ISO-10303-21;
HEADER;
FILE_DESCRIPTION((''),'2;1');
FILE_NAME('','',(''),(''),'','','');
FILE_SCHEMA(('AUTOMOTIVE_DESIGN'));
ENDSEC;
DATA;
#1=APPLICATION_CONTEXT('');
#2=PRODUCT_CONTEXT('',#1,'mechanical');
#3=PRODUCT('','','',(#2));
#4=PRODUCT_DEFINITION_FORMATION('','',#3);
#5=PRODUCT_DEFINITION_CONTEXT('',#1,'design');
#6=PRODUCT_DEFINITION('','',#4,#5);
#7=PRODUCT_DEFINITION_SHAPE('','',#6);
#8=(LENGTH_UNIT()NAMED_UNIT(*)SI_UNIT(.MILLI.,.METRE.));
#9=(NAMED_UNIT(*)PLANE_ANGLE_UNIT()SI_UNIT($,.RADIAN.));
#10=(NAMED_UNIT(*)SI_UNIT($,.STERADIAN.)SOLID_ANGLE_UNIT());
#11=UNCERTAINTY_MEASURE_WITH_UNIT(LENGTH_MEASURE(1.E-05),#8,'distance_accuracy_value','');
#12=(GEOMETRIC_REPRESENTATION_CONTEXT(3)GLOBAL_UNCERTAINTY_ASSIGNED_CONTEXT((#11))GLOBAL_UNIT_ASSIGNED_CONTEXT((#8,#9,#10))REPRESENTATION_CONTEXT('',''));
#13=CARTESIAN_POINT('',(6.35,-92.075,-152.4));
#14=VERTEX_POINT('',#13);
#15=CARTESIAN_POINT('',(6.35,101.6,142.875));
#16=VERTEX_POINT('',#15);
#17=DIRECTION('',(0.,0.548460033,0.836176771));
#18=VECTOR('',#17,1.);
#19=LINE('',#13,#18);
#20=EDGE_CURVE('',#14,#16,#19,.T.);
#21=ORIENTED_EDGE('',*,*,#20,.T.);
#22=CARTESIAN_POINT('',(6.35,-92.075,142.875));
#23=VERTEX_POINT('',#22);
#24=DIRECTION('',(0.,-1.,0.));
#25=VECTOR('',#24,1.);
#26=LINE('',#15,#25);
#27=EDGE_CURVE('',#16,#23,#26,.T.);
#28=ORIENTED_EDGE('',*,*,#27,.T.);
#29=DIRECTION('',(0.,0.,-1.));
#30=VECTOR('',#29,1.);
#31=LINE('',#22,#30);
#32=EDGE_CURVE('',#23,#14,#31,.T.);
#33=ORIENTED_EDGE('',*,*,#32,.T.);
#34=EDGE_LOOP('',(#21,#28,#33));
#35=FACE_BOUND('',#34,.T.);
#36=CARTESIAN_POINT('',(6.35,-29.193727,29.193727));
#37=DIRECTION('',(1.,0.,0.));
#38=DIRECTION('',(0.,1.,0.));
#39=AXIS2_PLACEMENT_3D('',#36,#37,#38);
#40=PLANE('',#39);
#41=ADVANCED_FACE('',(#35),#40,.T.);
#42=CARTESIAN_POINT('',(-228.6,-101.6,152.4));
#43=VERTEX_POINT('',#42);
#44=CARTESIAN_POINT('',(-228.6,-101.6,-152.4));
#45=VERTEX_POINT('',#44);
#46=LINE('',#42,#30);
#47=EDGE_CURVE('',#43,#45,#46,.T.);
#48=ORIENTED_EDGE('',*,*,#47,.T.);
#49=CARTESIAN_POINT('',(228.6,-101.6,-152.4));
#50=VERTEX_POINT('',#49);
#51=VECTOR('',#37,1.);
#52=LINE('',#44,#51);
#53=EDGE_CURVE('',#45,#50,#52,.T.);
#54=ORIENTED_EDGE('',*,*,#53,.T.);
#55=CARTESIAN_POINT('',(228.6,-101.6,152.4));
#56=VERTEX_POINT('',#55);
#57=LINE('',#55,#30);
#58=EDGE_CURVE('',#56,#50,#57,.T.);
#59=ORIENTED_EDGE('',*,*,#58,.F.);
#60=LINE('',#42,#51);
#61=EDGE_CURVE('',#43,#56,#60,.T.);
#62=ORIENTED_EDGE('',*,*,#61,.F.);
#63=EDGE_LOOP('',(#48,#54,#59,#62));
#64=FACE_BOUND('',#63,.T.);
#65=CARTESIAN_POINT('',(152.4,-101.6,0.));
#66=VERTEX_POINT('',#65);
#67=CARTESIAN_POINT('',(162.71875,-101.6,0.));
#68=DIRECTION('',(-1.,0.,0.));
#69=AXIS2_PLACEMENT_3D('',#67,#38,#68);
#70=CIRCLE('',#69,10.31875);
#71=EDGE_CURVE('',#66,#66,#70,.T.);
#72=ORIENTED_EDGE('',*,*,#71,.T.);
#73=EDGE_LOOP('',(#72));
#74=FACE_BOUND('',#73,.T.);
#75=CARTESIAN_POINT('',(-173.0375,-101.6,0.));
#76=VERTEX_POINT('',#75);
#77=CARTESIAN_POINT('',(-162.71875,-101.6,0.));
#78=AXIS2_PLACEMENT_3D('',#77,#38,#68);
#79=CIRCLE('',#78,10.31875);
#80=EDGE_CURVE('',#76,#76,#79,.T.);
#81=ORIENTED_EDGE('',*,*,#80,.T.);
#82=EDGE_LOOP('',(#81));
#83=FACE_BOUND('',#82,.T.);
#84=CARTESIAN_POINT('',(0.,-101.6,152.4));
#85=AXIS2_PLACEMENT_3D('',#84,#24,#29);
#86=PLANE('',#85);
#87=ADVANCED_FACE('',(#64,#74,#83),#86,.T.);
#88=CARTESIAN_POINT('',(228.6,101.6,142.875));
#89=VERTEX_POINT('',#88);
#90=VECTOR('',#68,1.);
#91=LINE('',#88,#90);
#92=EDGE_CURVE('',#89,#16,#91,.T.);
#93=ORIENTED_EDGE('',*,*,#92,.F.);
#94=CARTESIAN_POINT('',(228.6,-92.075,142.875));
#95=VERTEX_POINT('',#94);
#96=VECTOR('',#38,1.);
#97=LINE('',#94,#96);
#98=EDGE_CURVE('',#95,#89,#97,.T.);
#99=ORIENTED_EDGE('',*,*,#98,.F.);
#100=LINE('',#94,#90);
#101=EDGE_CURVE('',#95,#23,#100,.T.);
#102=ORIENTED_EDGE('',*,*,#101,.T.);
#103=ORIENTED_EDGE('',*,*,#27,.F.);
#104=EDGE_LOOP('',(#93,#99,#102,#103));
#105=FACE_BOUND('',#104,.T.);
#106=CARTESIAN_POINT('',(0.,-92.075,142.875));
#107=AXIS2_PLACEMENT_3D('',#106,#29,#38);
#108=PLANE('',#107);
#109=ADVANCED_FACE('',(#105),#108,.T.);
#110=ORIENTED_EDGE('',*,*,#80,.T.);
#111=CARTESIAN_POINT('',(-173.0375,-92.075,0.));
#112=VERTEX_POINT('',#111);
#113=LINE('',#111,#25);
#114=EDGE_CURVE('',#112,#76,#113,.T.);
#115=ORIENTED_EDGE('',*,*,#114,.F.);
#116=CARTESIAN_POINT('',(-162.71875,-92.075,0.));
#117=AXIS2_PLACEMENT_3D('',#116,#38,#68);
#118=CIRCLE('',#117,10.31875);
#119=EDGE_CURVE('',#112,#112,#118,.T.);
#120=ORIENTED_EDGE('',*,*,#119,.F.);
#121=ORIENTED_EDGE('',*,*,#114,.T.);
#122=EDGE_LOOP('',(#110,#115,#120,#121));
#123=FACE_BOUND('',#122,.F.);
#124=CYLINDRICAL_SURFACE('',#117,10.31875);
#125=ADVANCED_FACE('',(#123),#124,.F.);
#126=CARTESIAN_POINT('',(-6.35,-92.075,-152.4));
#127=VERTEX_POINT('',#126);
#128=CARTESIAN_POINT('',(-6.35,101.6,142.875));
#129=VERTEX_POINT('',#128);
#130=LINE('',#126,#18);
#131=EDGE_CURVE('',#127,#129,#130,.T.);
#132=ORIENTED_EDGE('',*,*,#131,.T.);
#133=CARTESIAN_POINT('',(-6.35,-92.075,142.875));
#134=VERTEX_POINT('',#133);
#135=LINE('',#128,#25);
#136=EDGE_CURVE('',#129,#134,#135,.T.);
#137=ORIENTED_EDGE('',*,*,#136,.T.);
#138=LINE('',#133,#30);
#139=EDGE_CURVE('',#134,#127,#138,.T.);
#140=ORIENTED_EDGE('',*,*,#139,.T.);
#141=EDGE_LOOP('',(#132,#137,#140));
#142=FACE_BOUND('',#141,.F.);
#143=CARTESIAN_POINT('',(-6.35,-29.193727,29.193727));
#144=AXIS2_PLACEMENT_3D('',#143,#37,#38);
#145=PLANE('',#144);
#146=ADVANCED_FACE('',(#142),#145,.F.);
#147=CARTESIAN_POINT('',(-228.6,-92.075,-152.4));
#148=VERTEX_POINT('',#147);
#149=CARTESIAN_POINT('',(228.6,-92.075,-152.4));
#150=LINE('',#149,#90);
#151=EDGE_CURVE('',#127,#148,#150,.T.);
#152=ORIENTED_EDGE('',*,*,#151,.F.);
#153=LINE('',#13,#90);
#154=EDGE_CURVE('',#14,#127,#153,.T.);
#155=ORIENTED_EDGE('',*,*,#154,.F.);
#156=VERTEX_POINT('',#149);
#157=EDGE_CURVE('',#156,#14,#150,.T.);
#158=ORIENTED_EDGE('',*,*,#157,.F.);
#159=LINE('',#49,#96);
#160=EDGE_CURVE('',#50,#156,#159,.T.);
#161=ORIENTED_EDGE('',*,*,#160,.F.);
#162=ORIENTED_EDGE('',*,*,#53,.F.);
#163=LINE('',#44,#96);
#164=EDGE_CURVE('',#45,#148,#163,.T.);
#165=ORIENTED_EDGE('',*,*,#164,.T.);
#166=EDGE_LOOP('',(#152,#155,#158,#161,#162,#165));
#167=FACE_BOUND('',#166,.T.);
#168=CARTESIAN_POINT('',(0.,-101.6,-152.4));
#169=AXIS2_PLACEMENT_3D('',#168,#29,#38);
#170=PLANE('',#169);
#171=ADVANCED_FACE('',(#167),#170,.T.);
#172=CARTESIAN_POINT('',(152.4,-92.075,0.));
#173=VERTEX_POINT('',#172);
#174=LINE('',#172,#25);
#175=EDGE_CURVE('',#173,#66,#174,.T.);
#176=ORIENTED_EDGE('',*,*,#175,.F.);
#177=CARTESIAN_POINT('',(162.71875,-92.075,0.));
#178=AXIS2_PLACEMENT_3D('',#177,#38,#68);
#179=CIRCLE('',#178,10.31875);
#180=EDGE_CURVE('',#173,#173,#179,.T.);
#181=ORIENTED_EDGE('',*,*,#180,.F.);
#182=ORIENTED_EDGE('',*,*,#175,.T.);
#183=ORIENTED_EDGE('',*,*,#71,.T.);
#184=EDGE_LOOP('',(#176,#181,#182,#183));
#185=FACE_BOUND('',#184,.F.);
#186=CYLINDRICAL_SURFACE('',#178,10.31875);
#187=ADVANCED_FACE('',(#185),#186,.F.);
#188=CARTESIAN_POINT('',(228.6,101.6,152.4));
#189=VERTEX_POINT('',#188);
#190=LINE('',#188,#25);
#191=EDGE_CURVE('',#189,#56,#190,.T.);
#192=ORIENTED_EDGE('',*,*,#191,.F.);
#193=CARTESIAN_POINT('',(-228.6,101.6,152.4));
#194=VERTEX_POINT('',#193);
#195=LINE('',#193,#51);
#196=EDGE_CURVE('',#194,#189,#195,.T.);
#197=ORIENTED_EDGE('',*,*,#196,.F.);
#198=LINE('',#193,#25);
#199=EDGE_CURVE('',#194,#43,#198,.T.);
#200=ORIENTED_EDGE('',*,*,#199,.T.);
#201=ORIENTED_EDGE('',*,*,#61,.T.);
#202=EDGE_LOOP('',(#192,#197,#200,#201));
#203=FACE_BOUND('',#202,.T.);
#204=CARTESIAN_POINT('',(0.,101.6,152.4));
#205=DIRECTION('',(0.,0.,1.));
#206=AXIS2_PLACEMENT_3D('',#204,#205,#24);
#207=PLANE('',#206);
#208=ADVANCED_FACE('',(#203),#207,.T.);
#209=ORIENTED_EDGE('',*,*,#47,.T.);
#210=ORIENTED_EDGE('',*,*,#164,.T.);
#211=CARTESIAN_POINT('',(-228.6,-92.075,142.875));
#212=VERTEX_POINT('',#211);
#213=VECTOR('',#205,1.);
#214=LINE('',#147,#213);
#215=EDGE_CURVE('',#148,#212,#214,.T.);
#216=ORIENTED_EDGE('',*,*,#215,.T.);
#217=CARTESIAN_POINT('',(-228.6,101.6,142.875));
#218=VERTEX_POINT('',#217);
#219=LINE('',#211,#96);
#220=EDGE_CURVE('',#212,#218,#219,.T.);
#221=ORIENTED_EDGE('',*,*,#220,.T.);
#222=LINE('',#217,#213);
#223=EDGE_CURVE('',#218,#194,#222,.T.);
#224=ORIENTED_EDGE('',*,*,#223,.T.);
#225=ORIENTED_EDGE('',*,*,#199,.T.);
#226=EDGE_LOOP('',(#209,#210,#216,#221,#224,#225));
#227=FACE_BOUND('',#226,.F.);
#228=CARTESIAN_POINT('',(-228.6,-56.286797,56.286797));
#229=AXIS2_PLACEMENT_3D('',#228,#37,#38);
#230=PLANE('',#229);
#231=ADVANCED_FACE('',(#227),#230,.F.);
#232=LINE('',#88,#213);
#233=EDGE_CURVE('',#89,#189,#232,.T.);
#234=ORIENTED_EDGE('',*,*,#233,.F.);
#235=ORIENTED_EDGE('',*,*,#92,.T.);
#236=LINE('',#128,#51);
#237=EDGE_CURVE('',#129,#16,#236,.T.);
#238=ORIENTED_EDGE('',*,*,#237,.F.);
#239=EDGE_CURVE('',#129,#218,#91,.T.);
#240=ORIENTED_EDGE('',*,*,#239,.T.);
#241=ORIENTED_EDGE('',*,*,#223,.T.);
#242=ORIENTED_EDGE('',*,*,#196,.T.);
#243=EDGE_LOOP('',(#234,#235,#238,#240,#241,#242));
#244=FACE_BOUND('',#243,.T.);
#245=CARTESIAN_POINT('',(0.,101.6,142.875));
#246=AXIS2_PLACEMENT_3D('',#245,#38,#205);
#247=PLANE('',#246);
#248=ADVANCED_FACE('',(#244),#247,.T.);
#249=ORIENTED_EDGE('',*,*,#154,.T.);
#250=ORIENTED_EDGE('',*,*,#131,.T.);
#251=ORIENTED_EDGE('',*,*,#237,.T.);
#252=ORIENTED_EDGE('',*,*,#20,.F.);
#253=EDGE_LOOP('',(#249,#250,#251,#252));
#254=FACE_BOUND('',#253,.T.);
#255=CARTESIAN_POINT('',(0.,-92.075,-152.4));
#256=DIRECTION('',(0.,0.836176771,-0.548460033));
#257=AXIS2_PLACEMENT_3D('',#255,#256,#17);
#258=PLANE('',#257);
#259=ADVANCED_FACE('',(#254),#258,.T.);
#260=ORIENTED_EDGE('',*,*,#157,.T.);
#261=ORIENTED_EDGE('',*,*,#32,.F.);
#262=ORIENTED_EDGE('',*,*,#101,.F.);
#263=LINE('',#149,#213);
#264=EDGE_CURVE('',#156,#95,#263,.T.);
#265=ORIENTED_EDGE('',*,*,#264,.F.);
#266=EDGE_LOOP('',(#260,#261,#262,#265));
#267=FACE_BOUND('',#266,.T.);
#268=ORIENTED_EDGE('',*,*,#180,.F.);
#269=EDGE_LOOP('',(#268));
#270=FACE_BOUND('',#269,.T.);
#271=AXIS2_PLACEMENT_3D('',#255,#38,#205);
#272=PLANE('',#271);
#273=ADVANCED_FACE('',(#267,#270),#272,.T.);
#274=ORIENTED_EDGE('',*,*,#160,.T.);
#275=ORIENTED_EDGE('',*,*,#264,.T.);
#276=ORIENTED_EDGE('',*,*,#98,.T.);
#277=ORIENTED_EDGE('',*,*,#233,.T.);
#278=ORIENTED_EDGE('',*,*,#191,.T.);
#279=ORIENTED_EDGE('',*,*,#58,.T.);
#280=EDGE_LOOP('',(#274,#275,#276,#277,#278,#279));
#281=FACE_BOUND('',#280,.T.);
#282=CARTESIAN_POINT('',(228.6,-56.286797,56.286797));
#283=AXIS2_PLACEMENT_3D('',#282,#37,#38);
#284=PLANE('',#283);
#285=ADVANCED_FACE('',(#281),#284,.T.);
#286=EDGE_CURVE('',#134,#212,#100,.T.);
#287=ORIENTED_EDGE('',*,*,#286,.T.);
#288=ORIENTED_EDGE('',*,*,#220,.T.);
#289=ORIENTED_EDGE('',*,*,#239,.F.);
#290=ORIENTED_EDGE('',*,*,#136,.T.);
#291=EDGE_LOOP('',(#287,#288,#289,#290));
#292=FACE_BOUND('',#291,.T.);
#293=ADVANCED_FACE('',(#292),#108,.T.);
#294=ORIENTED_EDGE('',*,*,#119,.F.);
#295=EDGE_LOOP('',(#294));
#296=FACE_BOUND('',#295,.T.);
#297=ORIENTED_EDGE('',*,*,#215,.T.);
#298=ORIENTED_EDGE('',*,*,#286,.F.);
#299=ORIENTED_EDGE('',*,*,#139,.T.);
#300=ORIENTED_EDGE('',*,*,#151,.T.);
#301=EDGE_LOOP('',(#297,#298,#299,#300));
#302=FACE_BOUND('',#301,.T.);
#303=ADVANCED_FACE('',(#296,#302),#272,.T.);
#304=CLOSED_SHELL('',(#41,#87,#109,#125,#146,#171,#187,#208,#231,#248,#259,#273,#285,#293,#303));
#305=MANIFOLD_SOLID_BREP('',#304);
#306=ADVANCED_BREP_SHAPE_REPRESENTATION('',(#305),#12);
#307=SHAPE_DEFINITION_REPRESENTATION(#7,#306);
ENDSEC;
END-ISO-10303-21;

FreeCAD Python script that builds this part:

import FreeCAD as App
import Part
import Sketcher

V = App.Vector
Q = App.Units.Quantity

doc = App.newDocument("Part")
body = doc.addObject("PartDesign::Body", "Body")

# Sketch on YZ plane
sketch1 = body.newObject("Sketcher::SketchObject", "Sketch")
sketch1.AttachmentSupport = (doc.getObject("YZ_Plane"), [""])
sketch1.MapMode = "FlatFace"
sketch1.addGeometry([
    Part.LineSegment(V(102, 143, 0), V(102, 152, 0)),  # 0
    Part.LineSegment(V(102, 152, 0), V(-102, 152, 0)),  # 1
    Part.LineSegment(V(-102, 152, 0), V(-102, -152, 0)),  # 2
    Part.LineSegment(V(-102, -152, 0), V(-92, -152, 0)),  # 3
    Part.LineSegment(V(-92, -152, 0), V(-92, 143, 0)),  # 4
    Part.LineSegment(V(-92, 143, 0), V(102, 143, 0)),  # 5
], False)
sketch1.addConstraint([
    Sketcher.Constraint("Coincident", 0, 2, 1, 1),
    Sketcher.Constraint("Coincident", 1, 2, 2, 1),
    Sketcher.Constraint("Coincident", 2, 2, 3, 1),
    Sketcher.Constraint("Coincident", 3, 2, 4, 1),
    Sketcher.Constraint("Coincident", 4, 2, 5, 1),
    Sketcher.Constraint("Coincident", 5, 2, 0, 1),
    Sketcher.Constraint("Vertical", 0),
    Sketcher.Constraint("Horizontal", 1),
    Sketcher.Constraint("Vertical", 2),
    Sketcher.Constraint("Horizontal", 3),
    Sketcher.Constraint("Vertical", 4),
    Sketcher.Constraint("Horizontal", 5),
    Sketcher.Constraint("Symmetric", 0, 2, 2, 2, -1, 1),
    Sketcher.Constraint("Equal", 3, 0),
    Sketcher.Constraint("DistanceX", 1, 2, 1, 1, Q("8 in")),
    Sketcher.Constraint("DistanceY", 2, 2, 2, 1, Q("12 in")),
    Sketcher.Constraint("DistanceX", 3, 1, 3, 2, Q("0.375 in")),
])
pad1 = body.newObject("PartDesign::Pad", "Pad")
pad1.Profile = sketch1
pad1.Length = Q("18 in")
pad1.Midplane = True

# Sketch on YZ plane
sketch2 = body.newObject("Sketcher::SketchObject", "Sketch001")
sketch2.AttachmentSupport = (doc.getObject("YZ_Plane"), [""])
sketch2.MapMode = "FlatFace"
sketch2.addGeometry([
    Part.LineSegment(V(-92, -152, 0), V(102, 143, 0)),
    Part.LineSegment(V(102, 143, 0), V(-92, 143, 0)),
    Part.LineSegment(V(-92, 143, 0), V(-92, -152, 0)),
], False)
sketch2.addConstraint([
    Sketcher.Constraint("Coincident", 0, 2, 1, 1),
    Sketcher.Constraint("Coincident", 1, 2, 2, 1),
    Sketcher.Constraint("Coincident", 2, 2, 0, 1),
    Sketcher.Constraint("Horizontal", 1),
    Sketcher.Constraint("Vertical", 2),
    Sketcher.Constraint("DistanceX", -1, 1, 0, 2, Q("4 in")),
    Sketcher.Constraint("DistanceY", 2, 2, -1, 1, Q("6 in")),
    Sketcher.Constraint("DistanceX", 1, 2, 1, 1, Q("7.625 in")),
    Sketcher.Constraint("DistanceY", 2, 2, 2, 1, Q("11.625 in")),
])
pad2 = body.newObject("PartDesign::Pad", "Pad001")
pad2.Profile = sketch2
pad2.Length = Q("0.5 in")
pad2.Midplane = True

# Sketch on XZ plane
sketch3 = body.newObject("Sketcher::SketchObject", "Sketch002")
sketch3.AttachmentSupport = (doc.getObject("XZ_Plane"), [""])
sketch3.MapMode = "FlatFace"
sketch3.AttachmentOffset = App.Placement(V(0, 0, 3.625 * 25.4), App.Rotation())
sketch3.addGeometry([
    Part.Circle(V(163, 0, 0), V(0, 0, 1), 10),
    Part.Circle(V(-163, 0, 0), V(0, 0, 1), 10),
], False)
sketch3.addConstraint([
    Sketcher.Constraint("Equal", 0, 1),
    Sketcher.Constraint("Symmetric", 0, 3, 1, 3, -1, 1),
    Sketcher.Constraint("PointOnObject", 0, 3, -1),
    Sketcher.Constraint("Diameter", 0, Q("0.8125 in")),
    Sketcher.Constraint("DistanceX", -1, 1, 0, 3, Q("6.40625 in")),
])
pocket1 = body.newObject("PartDesign::Pocket", "Pocket")
pocket1.Profile = sketch3
pocket1.Length = Q("1 in")
pocket1.Reversed = True

doc.recompute()
